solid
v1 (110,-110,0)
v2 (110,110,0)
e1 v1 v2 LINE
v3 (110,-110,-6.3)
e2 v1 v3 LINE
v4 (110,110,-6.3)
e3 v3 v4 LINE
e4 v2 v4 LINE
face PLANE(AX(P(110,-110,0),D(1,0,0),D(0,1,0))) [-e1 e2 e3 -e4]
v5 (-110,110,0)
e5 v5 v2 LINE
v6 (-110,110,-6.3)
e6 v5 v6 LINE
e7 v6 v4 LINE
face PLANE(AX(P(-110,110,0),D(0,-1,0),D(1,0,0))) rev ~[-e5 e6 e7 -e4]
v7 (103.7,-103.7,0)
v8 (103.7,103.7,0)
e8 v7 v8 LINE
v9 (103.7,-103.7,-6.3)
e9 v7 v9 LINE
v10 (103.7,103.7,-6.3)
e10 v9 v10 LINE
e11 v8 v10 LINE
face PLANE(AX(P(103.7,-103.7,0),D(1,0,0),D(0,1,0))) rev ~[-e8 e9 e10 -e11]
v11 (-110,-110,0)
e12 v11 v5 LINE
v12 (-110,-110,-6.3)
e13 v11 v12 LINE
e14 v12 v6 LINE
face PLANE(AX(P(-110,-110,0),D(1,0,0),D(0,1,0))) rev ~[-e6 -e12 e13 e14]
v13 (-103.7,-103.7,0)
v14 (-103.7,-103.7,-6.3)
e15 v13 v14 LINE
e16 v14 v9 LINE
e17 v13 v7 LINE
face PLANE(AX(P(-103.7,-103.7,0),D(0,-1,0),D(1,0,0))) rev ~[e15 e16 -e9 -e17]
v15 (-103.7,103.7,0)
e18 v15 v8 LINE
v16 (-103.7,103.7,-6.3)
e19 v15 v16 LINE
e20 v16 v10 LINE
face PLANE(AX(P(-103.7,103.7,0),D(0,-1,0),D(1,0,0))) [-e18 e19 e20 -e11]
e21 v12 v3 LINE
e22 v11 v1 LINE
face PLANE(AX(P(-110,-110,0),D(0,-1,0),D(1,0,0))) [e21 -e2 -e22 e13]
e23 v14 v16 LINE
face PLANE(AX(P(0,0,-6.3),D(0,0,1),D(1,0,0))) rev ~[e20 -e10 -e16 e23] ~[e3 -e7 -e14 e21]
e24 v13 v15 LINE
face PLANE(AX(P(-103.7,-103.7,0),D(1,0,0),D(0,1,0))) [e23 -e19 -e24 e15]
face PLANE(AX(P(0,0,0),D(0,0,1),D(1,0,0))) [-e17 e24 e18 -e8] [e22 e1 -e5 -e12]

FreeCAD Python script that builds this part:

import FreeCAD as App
import Part
import Sketcher
from FreeCAD import Vector
Q = App.Units.Quantity

doc = App.newDocument("Part")
body = doc.addObject("PartDesign::Body", "Body")

# Sketch on XY plane
sketch1 = body.newObject("Sketcher::SketchObject", "Sketch")
sketch1.AttachmentSupport = (doc.getObject("XY_Plane"), [""])
sketch1.MapMode = "FlatFace"
sketch1.addGeometry([
    Part.LineSegment(Vector(-110, 110, 0), Vector(-110, -110, 0)),
    Part.LineSegment(Vector(-110, -110, 0), Vector(110, -110, 0)),
    Part.LineSegment(Vector(110, -110, 0), Vector(110, 110, 0)),
    Part.LineSegment(Vector(110, 110, 0), Vector(-110, 110, 0)),
], False)
sketch1.addConstraint([
    Sketcher.Constraint("Coincident", 0, 2, 1, 1),
    Sketcher.Constraint("Coincident", 1, 2, 2, 1),
    Sketcher.Constraint("Coincident", 2, 2, 3, 1),
    Sketcher.Constraint("Coincident", 3, 2, 0, 1),
    Sketcher.Constraint("Vertical", 0),
    Sketcher.Constraint("Horizontal", 1),
    Sketcher.Constraint("Vertical", 2),
    Sketcher.Constraint("Horizontal", 3),
    Sketcher.Constraint("Symmetric", 0, 2, 2, 2, -1, 1),
    Sketcher.Constraint("Equal", 3, 0),
    Sketcher.Constraint("DistanceX", 1, 1, 1, 2, Q("220 mm")),
])
pad1 = body.newObject("PartDesign::Pad", "Pad")
pad1.Profile = sketch1
pad1.Length = 6.3
pad1.Reversed = True

# Sketch on XY plane
sketch2 = body.newObject("Sketcher::SketchObject", "Sketch001")
sketch2.AttachmentSupport = (doc.getObject("XY_Plane"), [""])
sketch2.MapMode = "FlatFace"
sketch2.addGeometry([
    Part.LineSegment(Vector(-104, 104, 0), Vector(-104, -104, 0)),
    Part.LineSegment(Vector(-104, -104, 0), Vector(104, -104, 0)),
    Part.LineSegment(Vector(104, -104, 0), Vector(104, 104, 0)),
    Part.LineSegment(Vector(104, 104, 0), Vector(-104, 104, 0)),
], False)
sketch2.addConstraint([
    Sketcher.Constraint("Coincident", 0, 2, 1, 1),
    Sketcher.Constraint("Coincident", 1, 2, 2, 1),
    Sketcher.Constraint("Coincident", 2, 2, 3, 1),
    Sketcher.Constraint("Coincident", 3, 2, 0, 1),
    Sketcher.Constraint("Vertical", 0),
    Sketcher.Constraint("Horizontal", 1),
    Sketcher.Constraint("Vertical", 2),
    Sketcher.Constraint("Horizontal", 3),
    Sketcher.Constraint("Symmetric", 0, 2, 2, 2, -1, 1),
    Sketcher.Constraint("Equal", 3, 0),
    Sketcher.Constraint("DistanceX", 1, 1, 1, 2, Q("207.4 mm")),
])
pocket1 = body.newObject("PartDesign::Pocket", "Pocket")
pocket1.Profile = sketch2
pocket1.Type = "ThroughAll"

doc.recompute()
